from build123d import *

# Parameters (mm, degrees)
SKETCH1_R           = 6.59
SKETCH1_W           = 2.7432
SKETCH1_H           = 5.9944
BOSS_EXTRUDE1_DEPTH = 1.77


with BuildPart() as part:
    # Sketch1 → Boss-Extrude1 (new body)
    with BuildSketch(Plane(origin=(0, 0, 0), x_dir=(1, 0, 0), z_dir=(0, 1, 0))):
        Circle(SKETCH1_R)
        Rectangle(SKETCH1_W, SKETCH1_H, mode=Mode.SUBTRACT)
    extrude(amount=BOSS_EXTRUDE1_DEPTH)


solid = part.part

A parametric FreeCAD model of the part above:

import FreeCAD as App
import Part
import Sketcher

V = App.Vector
Q = App.Units.Quantity

doc = App.newDocument("Part")
body = doc.addObject("PartDesign::Body", "Body")

# Sketch on XZ plane
sketch1 = body.newObject("Sketcher::SketchObject", "Sketch")
sketch1.AttachmentSupport = (doc.getObject("XZ_Plane"), [""])
sketch1.MapMode = "FlatFace"
sketch1.addGeometry([
    Part.Circle(V(0, 0, 0), V(0, 0, 1), 6.59),  # 0
    Part.LineSegment(V(1.3716, 2.9972, 0), V(-1.3716, 2.9972, 0)),  # 1
    Part.LineSegment(V(-1.3716, 2.9972, 0), V(-1.3716, -2.9972, 0)),  # 2
    Part.LineSegment(V(-1.3716, -2.9972, 0), V(1.3716, -2.9972, 0)),  # 3
    Part.LineSegment(V(1.3716, -2.9972, 0), V(1.3716, 2.9972, 0)),  # 4
], False)
sketch1.addConstraint([
    Sketcher.Constraint("Coincident", 1, 2, 2, 1),
    Sketcher.Constraint("Coincident", 2, 2, 3, 1),
    Sketcher.Constraint("Coincident", 3, 2, 4, 1),
    Sketcher.Constraint("Coincident", 4, 2, 1, 1),
    Sketcher.Constraint("Horizontal", 1),
    Sketcher.Constraint("Vertical", 2),
    Sketcher.Constraint("Horizontal", 3),
    Sketcher.Constraint("Vertical", 4),
    Sketcher.Constraint("Coincident", 0, 3, -1, 1),
    Sketcher.Constraint("Symmetric", 1, 2, 3, 2, -1, 1),
    Sketcher.Constraint("Diameter", 0, Q("13.18 mm")),
    Sketcher.Constraint("DistanceX", 1, 2, 1, 1, Q("0.108 in")),
    Sketcher.Constraint("DistanceY", 2, 2, 2, 1, Q("0.236 in")),
])
pad1 = body.newObject("PartDesign::Pad", "Pad")
pad1.Profile = sketch1
pad1.Length = 1.77
pad1.Reversed = True

doc.recompute()
